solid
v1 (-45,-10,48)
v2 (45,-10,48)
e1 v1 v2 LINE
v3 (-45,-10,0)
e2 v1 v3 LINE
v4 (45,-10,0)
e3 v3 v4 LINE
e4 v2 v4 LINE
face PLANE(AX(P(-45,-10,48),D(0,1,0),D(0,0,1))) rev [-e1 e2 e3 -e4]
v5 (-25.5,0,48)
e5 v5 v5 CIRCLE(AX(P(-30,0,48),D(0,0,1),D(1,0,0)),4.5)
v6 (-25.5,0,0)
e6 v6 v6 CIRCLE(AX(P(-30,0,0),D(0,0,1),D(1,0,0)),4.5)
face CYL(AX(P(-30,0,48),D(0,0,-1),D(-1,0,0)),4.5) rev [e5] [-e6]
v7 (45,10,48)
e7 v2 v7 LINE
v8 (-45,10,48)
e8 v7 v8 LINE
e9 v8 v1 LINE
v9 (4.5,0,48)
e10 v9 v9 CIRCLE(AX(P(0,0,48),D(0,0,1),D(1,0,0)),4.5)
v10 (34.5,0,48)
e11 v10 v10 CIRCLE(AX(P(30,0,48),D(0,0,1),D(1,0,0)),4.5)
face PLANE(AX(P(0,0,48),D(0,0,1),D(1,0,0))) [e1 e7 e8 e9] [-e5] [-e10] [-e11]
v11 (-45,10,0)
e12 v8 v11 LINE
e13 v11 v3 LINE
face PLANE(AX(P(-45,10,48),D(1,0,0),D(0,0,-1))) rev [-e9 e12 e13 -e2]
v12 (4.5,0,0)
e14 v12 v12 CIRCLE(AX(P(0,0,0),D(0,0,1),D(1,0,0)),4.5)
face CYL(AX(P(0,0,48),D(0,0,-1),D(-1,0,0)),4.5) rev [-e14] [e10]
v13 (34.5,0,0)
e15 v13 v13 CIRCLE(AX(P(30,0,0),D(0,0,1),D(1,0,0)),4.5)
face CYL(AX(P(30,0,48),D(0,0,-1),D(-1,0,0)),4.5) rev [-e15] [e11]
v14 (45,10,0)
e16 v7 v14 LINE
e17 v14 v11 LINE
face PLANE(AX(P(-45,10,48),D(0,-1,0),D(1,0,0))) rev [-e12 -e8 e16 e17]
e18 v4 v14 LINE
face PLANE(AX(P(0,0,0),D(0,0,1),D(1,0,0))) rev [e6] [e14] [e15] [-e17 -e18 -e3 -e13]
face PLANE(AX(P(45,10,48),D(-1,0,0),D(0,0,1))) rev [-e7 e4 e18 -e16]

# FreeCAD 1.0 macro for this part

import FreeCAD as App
import Part
import Sketcher


def add_polygon(sketch, points):
    """Adds a closed chain of lines whose ends are joined by coincident constraints."""
    first, n = sketch.GeometryCount, len(points)
    for a, b in zip(points, points[1:] + points[:1]):
        sketch.addGeometry(Part.LineSegment(App.Vector(*a, 0), App.Vector(*b, 0)), False)
    for i in range(n):
        sketch.addConstraint(Sketcher.Constraint("Coincident", first + i, 2, first + (i + 1) % n, 1))

doc = App.newDocument("Part")
params = doc.addObject("Spreadsheet::Sheet", "Params")
for row, (alias, value) in enumerate([
    ("sketch1_diameter", "9 mm"),
    ("sketch1_width", "90 mm"),
    ("sketch1_height", "20 mm"),
    ("pad1_length", "48 mm"),
], start=1):
    params.set(f"A{row}", alias)
    params.set(f"B{row}", "=" + value)
    params.setAlias(f"B{row}", alias)

body = doc.addObject("PartDesign::Body", "Body")

# Sketch on XY plane
sketch1 = body.newObject("Sketcher::SketchObject", "Sketch")
sketch1.AttachmentSupport = (doc.getObject("XY_Plane"), [""])
sketch1.MapMode = "FlatFace"
add_polygon(sketch1, [(-45, 10), (-45, -10), (45, -10), (45, 10)])  # lines 0-3
sketch1.addGeometry(Part.Circle(App.Vector(-30, 0, 0), App.Vector(0, 0, 1), 4.5), False)  # 4
sketch1.addGeometry(Part.Circle(App.Vector(0, 0, 0), App.Vector(0, 0, 1), 4.5), False)  # 5
sketch1.addGeometry(Part.Circle(App.Vector(30, 0, 0), App.Vector(0, 0, 1), 4.5), False)  # 6
sketch1.addConstraint([
    Sketcher.Constraint("Vertical", 0),
    Sketcher.Constraint("Horizontal", 1),
    Sketcher.Constraint("Vertical", 2),
    Sketcher.Constraint("Horizontal", 3),
    Sketcher.Constraint("Coincident", 5, 3, -1, 1),
    Sketcher.Constraint("Equal", 4, 5),
    Sketcher.Constraint("Equal", 5, 6),
    Sketcher.Constraint("Symmetric", 4, 3, 6, 3, -1, 1),
    Sketcher.Constraint("Symmetric", 0, 2, 2, 2, -1, 1),
    Sketcher.Constraint("PointOnObject", 4, 3, -1),
    Sketcher.Constraint("Diameter", 4, 9.0),
    Sketcher.Constraint("DistanceX", 1, 1, 1, 2, 90.0),
    Sketcher.Constraint("DistanceY", 0, 2, 0, 1, 20.0),
    Sketcher.Constraint("DistanceX", 4, 3, -1, 1, 30.0),
])
sketch1.setExpression("Constraints[14]", "Params.sketch1_diameter")
sketch1.setExpression("Constraints[15]", "Params.sketch1_width")
sketch1.setExpression("Constraints[16]", "Params.sketch1_height")
pad1 = body.newObject("PartDesign::Pad", "Pad")
pad1.Profile = sketch1
pad1.setExpression("Length", "Params.pad1_length")

doc.recompute()
